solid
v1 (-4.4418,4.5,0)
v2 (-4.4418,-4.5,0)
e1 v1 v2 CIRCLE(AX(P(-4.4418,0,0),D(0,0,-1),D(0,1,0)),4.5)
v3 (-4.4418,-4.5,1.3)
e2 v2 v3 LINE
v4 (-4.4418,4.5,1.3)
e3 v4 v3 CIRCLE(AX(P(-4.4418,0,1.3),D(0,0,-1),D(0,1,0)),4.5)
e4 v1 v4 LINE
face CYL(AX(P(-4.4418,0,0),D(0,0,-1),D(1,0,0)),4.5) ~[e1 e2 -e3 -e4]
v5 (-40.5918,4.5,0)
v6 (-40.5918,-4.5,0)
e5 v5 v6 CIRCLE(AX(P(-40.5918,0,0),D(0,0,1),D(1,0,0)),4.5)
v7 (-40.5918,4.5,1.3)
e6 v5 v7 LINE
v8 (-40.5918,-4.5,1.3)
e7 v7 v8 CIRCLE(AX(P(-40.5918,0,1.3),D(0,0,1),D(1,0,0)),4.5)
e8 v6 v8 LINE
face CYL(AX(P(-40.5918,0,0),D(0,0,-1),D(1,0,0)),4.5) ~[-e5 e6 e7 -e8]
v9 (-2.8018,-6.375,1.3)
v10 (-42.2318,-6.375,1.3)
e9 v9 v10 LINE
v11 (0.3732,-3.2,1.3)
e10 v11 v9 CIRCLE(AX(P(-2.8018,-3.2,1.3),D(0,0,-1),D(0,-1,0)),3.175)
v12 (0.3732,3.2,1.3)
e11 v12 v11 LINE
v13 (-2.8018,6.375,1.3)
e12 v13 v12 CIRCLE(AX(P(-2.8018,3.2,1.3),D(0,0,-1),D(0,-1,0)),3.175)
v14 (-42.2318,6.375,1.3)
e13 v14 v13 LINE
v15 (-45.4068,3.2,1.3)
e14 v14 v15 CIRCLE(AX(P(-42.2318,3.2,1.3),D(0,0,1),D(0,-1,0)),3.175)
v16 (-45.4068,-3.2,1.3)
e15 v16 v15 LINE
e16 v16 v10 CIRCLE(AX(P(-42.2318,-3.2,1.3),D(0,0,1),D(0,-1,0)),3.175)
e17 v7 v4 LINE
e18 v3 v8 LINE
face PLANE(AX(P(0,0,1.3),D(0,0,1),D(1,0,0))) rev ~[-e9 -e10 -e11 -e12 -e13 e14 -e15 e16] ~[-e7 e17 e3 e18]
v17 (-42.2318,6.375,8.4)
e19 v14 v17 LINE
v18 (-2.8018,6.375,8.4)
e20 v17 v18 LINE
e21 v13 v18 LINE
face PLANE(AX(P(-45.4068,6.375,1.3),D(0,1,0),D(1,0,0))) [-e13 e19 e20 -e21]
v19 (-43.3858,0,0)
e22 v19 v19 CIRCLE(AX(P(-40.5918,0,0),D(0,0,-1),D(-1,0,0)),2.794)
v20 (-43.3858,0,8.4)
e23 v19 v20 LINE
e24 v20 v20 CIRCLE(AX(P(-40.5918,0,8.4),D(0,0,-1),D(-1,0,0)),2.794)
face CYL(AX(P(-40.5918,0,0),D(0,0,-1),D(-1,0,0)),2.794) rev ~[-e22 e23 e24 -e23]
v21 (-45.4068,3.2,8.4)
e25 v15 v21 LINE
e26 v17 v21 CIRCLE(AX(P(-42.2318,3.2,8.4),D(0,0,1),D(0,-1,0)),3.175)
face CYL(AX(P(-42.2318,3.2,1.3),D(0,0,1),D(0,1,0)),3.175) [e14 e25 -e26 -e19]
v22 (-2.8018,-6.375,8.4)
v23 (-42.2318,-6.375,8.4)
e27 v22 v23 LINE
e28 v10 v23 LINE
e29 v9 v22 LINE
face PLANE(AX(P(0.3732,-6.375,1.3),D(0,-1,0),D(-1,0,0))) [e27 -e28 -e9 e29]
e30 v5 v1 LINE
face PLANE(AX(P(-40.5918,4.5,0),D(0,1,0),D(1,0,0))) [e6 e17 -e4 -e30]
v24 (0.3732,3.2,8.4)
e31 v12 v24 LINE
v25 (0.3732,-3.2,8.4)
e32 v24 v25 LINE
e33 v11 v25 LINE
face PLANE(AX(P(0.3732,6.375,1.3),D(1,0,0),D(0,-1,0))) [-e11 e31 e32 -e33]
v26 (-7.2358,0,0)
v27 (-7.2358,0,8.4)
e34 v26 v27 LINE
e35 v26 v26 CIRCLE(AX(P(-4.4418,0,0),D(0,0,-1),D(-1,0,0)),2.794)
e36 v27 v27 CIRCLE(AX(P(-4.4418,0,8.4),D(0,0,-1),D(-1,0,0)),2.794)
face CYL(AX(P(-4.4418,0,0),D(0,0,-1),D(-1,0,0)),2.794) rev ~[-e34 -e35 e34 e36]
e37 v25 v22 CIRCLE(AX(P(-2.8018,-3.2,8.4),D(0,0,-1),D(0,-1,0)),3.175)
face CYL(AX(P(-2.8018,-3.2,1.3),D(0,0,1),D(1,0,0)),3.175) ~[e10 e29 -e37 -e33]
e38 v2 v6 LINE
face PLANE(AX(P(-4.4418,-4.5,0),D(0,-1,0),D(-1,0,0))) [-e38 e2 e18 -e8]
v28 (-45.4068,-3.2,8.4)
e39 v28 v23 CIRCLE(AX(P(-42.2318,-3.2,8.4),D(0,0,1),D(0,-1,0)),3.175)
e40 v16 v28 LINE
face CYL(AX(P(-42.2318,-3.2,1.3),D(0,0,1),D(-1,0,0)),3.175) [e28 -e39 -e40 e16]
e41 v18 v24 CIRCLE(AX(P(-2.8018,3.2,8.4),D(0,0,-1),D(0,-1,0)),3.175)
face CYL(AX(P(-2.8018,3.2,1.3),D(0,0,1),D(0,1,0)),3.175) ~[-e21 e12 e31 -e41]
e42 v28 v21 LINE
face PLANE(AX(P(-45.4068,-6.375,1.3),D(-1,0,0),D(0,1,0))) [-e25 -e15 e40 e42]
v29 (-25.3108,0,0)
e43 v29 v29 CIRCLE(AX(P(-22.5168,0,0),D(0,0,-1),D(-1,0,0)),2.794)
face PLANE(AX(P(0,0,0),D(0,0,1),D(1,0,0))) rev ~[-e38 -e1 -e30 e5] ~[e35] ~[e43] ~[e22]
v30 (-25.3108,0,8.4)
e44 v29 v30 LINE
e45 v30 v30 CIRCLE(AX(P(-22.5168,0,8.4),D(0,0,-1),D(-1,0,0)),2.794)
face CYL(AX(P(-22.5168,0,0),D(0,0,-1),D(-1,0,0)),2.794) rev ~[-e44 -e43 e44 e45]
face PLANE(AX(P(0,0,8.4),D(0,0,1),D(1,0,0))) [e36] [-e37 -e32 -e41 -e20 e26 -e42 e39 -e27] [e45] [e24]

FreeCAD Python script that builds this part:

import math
import FreeCAD as App
import Part
import Sketcher
from FreeCAD import Vector


def edges_at(feature, points):
    """Names of the edges that pass closest to the given points."""
    edges = feature.Shape.Edges
    near = lambda p: min(range(len(edges)), key=lambda i: edges[i].distToShape(Part.Vertex(*p))[0])
    return sorted({f"Edge{near(p) + 1}" for p in points})


def add_polygon(sketch, points):
    """Adds a closed chain of lines whose ends are joined by coincident constraints."""
    first, n = sketch.GeometryCount, len(points)
    for a, b in zip(points, points[1:] + points[:1]):
        sketch.addGeometry(Part.LineSegment(App.Vector(*a, 0), App.Vector(*b, 0)), False)
    for i in range(n):
        sketch.addConstraint(Sketcher.Constraint("Coincident", first + i, 2, first + (i + 1) % n, 1))

doc = App.newDocument("Part")
body = doc.addObject("PartDesign::Body", "Body")

# Sketch on XY plane
sketch1 = body.newObject("Sketcher::SketchObject", "Sketch")
sketch1.AttachmentSupport = (doc.getObject("XY_Plane"), [""])
sketch1.MapMode = "FlatFace"
sketch1.addGeometry([
    Part.LineSegment(Vector(-40.6, -4.5, 0), Vector(-4.4, -4.5, 0)),
    Part.ArcOfCircle(Part.Circle(Vector(-4.4, 0, 0), Vector(0, 0, 1), 4.5), math.radians(-90), math.radians(90)),
    Part.LineSegment(Vector(-4.4, 4.5, 0), Vector(-40.6, 4.5, 0)),
    Part.ArcOfCircle(Part.Circle(Vector(-40.6, 0, 0), Vector(0, 0, 1), 4.5), math.radians(90), math.radians(270)),
], False)
sketch1.addConstraint([
    Sketcher.Constraint("Tangent", 0, 2, 1, 1),
    Sketcher.Constraint("Tangent", 1, 2, 2, 1),
    Sketcher.Constraint("Tangent", 2, 2, 3, 1),
    Sketcher.Constraint("Tangent", 3, 2, 0, 1),
    Sketcher.Constraint("Horizontal", 0),
    Sketcher.Constraint("Horizontal", 2),
    Sketcher.Constraint("PointOnObject", 1, 3, -1),
    Sketcher.Constraint("Radius", 1, 4.5),
    Sketcher.Constraint("DistanceX", 0, 1, 0, 2, 36.15),
    Sketcher.Constraint("DistanceX", 1, 3, -1, 1, 4.4418),
])
pad1 = body.newObject("PartDesign::Pad", "Pad")
pad1.Profile = sketch1
pad1.Length = 1.3

# Sketch on XY plane
sketch2 = body.newObject("Sketcher::SketchObject", "Sketch001")
sketch2.AttachmentSupport = (doc.getObject("XY_Plane"), [""])
sketch2.MapMode = "FlatFace"
sketch2.AttachmentOffset = App.Placement(Vector(0, 0, 1.3), App.Rotation())
add_polygon(sketch2, [(0, 6), (-45, 6), (-45, -6), (0, -6)])  # lines 0-3
sketch2.addConstraint([
    Sketcher.Constraint("Horizontal", 0),
    Sketcher.Constraint("Vertical", 1),
    Sketcher.Constraint("Horizontal", 2),
    Sketcher.Constraint("Vertical", 3),
    Sketcher.Constraint("DistanceX", 0, 2, 0, 1, 45.78),
    Sketcher.Constraint("DistanceY", 1, 2, 1, 1, 12.75),
    Sketcher.Constraint("DistanceY", -1, 1, 0, 2, 6.375),
    Sketcher.Constraint("DistanceX", 0, 2, -1, 1, 45.4068),
])
pad2 = body.newObject("PartDesign::Pad", "Pad001")
pad2.Profile = sketch2
pad2.Length = 7.1
doc.recompute()

fillet = body.newObject("PartDesign::Fillet", "Fillet")
fillet.Base = (pad2, edges_at(pad2, [
    (-45.407, 6.375, 4.85),
    (-45.407, -6.375, 4.85),
    (0.373, 6.375, 4.85),
    (0.373, -6.375, 4.85),
]))
fillet.Radius = 3.175

# Sketch on XY plane
sketch3 = body.newObject("Sketcher::SketchObject", "Sketch002")
sketch3.AttachmentSupport = (doc.getObject("XY_Plane"), [""])
sketch3.MapMode = "FlatFace"
sketch3.addGeometry([
    Part.Circle(Vector(-4.4, 0, 0), Vector(0, 0, 1), 2.8),
    Part.Circle(Vector(-22.5, 0, 0), Vector(0, 0, 1), 2.8),
    Part.Circle(Vector(-40.6, 0, 0), Vector(0, 0, 1), 2.8),
], False)
sketch3.addConstraint([
    Sketcher.Constraint("Equal", 0, 1),
    Sketcher.Constraint("Equal", 1, 2),
    Sketcher.Constraint("PointOnObject", 0, 3, -1),
    Sketcher.Constraint("PointOnObject", 1, 3, -1),
    Sketcher.Constraint("PointOnObject", 2, 3, -1),
    Sketcher.Constraint("Diameter", 0, 5.588),
    Sketcher.Constraint("DistanceX", 2, 3, 0, 3, 36.15),
    Sketcher.Constraint("DistanceX", 1, 3, 0, 3, 18.075),
    Sketcher.Constraint("DistanceX", 0, 3, -1, 1, 4.4418),
])
pocket1 = body.newObject("PartDesign::Pocket", "Pocket")
pocket1.Profile = sketch3
pocket1.Type = "ThroughAll"
pocket1.Reversed = True

doc.recompute()
